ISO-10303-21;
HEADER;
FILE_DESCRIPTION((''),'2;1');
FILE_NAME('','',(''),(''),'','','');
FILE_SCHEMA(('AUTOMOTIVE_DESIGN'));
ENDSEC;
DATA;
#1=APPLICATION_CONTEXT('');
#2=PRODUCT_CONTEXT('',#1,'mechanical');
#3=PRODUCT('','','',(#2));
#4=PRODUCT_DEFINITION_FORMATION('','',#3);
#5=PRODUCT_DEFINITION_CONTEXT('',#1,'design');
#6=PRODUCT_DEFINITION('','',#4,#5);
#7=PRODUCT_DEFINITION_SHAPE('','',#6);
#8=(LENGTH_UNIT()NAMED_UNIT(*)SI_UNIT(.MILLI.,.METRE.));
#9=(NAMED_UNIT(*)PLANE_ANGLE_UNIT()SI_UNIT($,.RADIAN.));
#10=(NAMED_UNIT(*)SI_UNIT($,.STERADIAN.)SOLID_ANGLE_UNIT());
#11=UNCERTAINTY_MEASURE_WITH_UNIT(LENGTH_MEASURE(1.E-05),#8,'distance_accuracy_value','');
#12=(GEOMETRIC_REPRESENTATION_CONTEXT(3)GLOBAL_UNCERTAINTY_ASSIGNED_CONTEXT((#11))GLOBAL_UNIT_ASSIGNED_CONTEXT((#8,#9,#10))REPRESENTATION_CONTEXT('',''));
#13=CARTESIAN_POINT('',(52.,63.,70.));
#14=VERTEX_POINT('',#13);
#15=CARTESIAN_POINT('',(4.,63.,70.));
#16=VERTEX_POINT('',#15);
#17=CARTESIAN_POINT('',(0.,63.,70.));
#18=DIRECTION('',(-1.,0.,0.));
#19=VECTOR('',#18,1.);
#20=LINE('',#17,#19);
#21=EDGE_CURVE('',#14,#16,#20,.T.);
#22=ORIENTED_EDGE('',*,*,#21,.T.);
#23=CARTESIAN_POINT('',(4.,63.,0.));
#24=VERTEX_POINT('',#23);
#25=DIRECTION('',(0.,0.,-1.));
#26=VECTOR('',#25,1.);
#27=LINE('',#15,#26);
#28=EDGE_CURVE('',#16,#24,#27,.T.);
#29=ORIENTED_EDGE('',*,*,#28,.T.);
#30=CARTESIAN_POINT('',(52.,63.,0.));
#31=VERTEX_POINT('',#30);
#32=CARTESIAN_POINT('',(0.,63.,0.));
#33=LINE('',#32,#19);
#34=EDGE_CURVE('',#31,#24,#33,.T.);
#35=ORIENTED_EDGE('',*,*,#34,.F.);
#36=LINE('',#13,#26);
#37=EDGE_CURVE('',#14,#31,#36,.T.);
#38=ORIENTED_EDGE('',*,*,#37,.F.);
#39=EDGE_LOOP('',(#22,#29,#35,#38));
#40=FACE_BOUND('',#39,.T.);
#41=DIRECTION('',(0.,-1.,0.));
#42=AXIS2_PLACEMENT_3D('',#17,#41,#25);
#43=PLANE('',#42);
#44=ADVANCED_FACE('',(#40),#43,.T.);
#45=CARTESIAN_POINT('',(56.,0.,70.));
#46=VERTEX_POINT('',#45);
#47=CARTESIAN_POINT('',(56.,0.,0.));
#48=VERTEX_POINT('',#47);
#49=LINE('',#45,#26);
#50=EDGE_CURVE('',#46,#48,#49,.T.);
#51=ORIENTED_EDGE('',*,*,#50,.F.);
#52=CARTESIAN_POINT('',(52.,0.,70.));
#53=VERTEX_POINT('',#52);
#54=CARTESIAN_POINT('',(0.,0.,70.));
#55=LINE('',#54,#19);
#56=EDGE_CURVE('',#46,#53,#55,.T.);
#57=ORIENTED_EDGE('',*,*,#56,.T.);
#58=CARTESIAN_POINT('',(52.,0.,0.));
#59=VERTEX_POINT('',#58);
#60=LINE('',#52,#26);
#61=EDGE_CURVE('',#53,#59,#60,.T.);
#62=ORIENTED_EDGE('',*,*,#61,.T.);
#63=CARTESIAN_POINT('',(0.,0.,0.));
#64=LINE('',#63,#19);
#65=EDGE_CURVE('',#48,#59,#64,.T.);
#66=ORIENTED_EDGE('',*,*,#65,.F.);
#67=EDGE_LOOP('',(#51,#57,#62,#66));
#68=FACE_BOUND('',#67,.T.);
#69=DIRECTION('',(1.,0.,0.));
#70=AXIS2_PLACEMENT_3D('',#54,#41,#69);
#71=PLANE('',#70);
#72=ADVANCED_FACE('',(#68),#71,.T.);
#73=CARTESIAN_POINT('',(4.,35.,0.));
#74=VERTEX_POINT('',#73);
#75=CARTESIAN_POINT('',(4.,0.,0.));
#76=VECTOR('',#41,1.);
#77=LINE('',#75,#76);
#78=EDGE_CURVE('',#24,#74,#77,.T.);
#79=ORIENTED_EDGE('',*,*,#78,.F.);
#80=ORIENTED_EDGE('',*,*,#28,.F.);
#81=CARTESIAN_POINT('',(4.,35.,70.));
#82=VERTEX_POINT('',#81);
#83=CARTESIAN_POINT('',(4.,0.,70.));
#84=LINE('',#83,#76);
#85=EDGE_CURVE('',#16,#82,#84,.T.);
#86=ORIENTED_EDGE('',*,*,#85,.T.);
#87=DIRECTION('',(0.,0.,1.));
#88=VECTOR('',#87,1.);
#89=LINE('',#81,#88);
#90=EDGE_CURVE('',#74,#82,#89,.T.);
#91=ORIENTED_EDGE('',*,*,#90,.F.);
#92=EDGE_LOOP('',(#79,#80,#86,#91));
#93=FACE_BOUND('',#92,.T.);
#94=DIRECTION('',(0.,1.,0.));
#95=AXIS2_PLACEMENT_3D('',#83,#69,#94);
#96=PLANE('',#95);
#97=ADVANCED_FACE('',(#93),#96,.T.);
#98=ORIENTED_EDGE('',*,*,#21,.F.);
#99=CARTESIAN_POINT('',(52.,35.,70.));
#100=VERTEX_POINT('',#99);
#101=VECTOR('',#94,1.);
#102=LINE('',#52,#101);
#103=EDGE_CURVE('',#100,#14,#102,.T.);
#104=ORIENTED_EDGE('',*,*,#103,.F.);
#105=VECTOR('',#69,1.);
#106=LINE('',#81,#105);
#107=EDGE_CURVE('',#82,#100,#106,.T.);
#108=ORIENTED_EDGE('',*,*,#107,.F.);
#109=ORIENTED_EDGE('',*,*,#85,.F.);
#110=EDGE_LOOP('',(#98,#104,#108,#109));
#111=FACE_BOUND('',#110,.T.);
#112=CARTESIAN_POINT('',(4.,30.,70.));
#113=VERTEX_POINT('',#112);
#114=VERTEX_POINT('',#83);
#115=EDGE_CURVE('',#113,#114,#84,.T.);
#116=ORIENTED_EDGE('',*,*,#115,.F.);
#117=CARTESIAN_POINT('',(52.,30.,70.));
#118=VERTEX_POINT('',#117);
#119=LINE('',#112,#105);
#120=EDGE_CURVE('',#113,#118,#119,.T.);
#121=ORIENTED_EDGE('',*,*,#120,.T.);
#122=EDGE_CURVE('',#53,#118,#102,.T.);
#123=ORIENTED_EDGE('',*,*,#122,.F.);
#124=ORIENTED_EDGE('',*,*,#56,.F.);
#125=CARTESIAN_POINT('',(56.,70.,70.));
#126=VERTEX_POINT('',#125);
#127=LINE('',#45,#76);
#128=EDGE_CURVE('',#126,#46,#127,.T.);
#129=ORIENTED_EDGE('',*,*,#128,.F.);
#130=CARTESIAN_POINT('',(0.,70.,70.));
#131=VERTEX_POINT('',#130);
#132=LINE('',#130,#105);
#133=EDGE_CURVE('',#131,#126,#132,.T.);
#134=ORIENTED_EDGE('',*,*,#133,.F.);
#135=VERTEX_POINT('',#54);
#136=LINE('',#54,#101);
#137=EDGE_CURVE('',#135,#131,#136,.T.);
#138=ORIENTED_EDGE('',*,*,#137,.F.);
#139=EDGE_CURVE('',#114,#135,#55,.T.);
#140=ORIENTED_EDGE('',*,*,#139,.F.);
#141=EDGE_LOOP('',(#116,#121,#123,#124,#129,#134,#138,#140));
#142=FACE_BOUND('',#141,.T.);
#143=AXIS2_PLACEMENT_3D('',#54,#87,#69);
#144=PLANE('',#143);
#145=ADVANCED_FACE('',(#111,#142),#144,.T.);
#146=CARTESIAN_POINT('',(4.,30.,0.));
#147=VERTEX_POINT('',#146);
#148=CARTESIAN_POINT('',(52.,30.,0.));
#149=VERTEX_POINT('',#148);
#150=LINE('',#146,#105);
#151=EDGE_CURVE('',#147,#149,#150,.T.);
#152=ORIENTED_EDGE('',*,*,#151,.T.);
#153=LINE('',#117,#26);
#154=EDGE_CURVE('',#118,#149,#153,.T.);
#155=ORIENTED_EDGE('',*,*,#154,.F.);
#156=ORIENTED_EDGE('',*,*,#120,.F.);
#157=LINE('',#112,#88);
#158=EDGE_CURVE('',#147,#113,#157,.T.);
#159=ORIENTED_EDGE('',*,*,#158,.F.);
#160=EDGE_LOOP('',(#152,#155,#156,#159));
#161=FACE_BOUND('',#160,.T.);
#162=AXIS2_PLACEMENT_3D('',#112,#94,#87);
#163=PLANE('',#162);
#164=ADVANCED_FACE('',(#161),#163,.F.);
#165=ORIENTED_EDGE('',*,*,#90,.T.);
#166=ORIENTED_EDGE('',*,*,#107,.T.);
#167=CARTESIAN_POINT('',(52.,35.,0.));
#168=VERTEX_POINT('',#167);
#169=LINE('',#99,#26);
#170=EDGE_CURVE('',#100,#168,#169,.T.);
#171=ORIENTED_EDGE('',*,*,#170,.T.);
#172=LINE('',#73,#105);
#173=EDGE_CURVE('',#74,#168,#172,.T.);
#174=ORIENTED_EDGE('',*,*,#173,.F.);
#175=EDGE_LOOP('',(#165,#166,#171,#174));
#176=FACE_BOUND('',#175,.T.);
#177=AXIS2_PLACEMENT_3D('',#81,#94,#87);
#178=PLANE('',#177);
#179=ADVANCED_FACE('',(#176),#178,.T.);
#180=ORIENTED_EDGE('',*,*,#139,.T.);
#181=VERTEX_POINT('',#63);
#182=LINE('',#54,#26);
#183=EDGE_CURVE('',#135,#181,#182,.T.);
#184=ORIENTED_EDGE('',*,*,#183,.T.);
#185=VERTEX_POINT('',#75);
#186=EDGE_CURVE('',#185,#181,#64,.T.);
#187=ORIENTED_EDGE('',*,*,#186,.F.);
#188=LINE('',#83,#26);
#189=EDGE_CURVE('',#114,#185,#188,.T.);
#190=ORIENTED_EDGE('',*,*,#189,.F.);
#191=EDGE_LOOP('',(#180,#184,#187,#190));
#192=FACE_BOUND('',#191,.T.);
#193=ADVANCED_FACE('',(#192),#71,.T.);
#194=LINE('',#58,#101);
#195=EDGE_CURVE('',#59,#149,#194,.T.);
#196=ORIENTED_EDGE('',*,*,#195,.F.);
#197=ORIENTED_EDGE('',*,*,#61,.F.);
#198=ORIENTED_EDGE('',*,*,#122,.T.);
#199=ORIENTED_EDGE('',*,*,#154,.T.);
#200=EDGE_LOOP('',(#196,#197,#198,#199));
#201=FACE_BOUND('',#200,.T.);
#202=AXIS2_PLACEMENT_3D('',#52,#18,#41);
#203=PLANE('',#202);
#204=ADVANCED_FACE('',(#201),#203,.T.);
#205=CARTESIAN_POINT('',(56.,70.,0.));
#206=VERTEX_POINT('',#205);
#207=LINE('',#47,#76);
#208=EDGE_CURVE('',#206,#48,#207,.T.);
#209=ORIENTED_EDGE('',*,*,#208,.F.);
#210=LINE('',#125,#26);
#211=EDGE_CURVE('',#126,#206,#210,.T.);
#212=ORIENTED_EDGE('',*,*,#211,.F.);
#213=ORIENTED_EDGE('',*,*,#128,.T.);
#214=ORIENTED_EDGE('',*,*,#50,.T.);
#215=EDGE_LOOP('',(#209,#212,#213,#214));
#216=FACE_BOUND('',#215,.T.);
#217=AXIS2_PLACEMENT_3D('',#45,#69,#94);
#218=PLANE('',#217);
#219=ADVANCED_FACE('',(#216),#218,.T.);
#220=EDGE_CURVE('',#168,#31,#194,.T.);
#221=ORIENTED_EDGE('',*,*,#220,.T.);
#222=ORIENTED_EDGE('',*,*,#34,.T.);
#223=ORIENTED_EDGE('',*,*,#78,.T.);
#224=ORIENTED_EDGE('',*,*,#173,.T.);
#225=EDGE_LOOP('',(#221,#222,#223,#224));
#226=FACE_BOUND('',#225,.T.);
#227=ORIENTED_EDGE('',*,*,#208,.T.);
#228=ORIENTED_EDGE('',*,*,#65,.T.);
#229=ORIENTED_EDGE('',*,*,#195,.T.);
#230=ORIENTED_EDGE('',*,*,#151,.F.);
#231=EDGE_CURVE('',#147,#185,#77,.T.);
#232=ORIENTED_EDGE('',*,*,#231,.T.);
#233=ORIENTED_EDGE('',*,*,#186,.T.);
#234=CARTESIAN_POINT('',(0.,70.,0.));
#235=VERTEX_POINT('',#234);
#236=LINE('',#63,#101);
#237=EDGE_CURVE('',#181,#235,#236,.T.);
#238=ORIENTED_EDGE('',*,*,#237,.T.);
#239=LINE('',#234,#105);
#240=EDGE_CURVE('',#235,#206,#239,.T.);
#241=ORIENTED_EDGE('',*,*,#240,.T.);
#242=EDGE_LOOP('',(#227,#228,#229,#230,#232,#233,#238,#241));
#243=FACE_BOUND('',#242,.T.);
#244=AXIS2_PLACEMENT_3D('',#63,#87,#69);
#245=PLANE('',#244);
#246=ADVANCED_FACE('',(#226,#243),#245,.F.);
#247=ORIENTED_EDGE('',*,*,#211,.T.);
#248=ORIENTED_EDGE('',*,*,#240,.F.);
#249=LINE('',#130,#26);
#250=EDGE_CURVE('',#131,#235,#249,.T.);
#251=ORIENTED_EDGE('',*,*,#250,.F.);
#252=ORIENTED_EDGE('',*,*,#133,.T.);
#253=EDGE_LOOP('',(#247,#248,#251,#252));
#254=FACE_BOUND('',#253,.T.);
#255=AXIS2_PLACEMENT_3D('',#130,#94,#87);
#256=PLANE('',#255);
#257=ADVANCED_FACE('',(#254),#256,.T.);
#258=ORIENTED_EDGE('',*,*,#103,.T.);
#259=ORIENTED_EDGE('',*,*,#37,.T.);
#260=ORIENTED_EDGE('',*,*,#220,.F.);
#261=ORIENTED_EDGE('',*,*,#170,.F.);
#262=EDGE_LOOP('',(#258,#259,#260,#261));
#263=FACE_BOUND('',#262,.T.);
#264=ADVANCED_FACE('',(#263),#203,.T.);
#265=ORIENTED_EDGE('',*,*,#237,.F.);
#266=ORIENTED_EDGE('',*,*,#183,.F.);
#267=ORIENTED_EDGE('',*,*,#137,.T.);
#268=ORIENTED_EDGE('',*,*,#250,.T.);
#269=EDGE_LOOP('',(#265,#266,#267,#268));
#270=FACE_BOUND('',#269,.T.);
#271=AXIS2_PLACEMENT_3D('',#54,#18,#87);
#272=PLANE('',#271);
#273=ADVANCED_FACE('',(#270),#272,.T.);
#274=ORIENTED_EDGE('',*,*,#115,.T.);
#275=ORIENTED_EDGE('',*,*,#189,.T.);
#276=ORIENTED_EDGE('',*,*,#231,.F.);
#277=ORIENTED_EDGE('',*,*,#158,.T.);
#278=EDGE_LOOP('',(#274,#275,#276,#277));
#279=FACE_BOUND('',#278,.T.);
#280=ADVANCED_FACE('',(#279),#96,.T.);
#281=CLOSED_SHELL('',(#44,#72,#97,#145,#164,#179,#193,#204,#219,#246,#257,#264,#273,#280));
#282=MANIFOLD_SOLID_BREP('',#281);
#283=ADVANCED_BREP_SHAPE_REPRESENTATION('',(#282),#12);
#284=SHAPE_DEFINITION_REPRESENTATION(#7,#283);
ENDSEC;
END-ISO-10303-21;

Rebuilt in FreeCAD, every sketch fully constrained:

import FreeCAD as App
import Part
import Sketcher

V = App.Vector
Q = App.Units.Quantity

doc = App.newDocument("Part")
body = doc.addObject("PartDesign::Body", "Body")

# Sketch on XY plane
sketch1 = body.newObject("Sketcher::SketchObject", "Sketch")
sketch1.AttachmentSupport = (doc.getObject("XY_Plane"), [""])
sketch1.MapMode = "FlatFace"
sketch1.addGeometry([
    Part.LineSegment(V(0, 0, 0), V(4, 0, 0)),  # 0
    Part.LineSegment(V(4, 0, 0), V(4, 30, 0)),  # 1
    Part.LineSegment(V(4, 30, 0), V(52, 30, 0)),  # 2
    Part.LineSegment(V(52, 30, 0), V(52, 0, 0)),  # 3
    Part.LineSegment(V(52, 0, 0), V(56, 0, 0)),  # 4
    Part.LineSegment(V(56, 0, 0), V(56, 70, 0)),  # 5
    Part.LineSegment(V(56, 70, 0), V(0, 70, 0)),  # 6
    Part.LineSegment(V(0, 70, 0), V(0, 0, 0)),  # 7
    Part.LineSegment(V(52, 63, 0), V(52, 35, 0)),  # 8
    Part.LineSegment(V(52, 35, 0), V(4, 35, 0)),  # 9
    Part.LineSegment(V(4, 35, 0), V(4, 63, 0)),  # 10
    Part.LineSegment(V(4, 63, 0), V(52, 63, 0)),  # 11
], False)
sketch1.addConstraint([
    Sketcher.Constraint("Coincident", 0, 2, 1, 1),
    Sketcher.Constraint("Coincident", 1, 2, 2, 1),
    Sketcher.Constraint("Coincident", 2, 2, 3, 1),
    Sketcher.Constraint("Coincident", 3, 2, 4, 1),
    Sketcher.Constraint("Coincident", 4, 2, 5, 1),
    Sketcher.Constraint("Coincident", 5, 2, 6, 1),
    Sketcher.Constraint("Coincident", 6, 2, 7, 1),
    Sketcher.Constraint("Coincident", 7, 2, 0, 1),
    Sketcher.Constraint("Coincident", 8, 2, 9, 1),
    Sketcher.Constraint("Coincident", 9, 2, 10, 1),
    Sketcher.Constraint("Coincident", 10, 2, 11, 1),
    Sketcher.Constraint("Coincident", 11, 2, 8, 1),
    Sketcher.Constraint("Horizontal", 0),
    Sketcher.Constraint("Vertical", 1),
    Sketcher.Constraint("Horizontal", 2),
    Sketcher.Constraint("Vertical", 3),
    Sketcher.Constraint("Horizontal", 4),
    Sketcher.Constraint("Vertical", 5),
    Sketcher.Constraint("Horizontal", 6),
    Sketcher.Constraint("Vertical", 7),
    Sketcher.Constraint("Vertical", 8),
    Sketcher.Constraint("Horizontal", 9),
    Sketcher.Constraint("Vertical", 10),
    Sketcher.Constraint("Horizontal", 11),
    Sketcher.Constraint("Coincident", 7, 2, -1, 1),
    Sketcher.Constraint("PointOnObject", 3, 2, -1),
    Sketcher.Constraint("Vertical", 3, 2, 8, 2),
    Sketcher.Constraint("Vertical", 1, 2, 9, 2),
    Sketcher.Constraint("Equal", 0, 4),
    Sketcher.Constraint("DistanceX", 0, 1, 0, 2, Q("4 mm")),
    Sketcher.Constraint("DistanceX", 2, 1, 2, 2, Q("48 mm")),
    Sketcher.Constraint("DistanceY", 1, 1, 1, 2, Q("30 mm")),
    Sketcher.Constraint("DistanceY", 5, 1, 5, 2, Q("70 mm")),
    Sketcher.Constraint("DistanceY", 8, 2, 8, 1, Q("28 mm")),
    Sketcher.Constraint("DistanceY", -1, 1, 8, 2, Q("35 mm")),
])
pad1 = body.newObject("PartDesign::Pad", "Pad")
pad1.Profile = sketch1
pad1.Length = 70

doc.recompute()
